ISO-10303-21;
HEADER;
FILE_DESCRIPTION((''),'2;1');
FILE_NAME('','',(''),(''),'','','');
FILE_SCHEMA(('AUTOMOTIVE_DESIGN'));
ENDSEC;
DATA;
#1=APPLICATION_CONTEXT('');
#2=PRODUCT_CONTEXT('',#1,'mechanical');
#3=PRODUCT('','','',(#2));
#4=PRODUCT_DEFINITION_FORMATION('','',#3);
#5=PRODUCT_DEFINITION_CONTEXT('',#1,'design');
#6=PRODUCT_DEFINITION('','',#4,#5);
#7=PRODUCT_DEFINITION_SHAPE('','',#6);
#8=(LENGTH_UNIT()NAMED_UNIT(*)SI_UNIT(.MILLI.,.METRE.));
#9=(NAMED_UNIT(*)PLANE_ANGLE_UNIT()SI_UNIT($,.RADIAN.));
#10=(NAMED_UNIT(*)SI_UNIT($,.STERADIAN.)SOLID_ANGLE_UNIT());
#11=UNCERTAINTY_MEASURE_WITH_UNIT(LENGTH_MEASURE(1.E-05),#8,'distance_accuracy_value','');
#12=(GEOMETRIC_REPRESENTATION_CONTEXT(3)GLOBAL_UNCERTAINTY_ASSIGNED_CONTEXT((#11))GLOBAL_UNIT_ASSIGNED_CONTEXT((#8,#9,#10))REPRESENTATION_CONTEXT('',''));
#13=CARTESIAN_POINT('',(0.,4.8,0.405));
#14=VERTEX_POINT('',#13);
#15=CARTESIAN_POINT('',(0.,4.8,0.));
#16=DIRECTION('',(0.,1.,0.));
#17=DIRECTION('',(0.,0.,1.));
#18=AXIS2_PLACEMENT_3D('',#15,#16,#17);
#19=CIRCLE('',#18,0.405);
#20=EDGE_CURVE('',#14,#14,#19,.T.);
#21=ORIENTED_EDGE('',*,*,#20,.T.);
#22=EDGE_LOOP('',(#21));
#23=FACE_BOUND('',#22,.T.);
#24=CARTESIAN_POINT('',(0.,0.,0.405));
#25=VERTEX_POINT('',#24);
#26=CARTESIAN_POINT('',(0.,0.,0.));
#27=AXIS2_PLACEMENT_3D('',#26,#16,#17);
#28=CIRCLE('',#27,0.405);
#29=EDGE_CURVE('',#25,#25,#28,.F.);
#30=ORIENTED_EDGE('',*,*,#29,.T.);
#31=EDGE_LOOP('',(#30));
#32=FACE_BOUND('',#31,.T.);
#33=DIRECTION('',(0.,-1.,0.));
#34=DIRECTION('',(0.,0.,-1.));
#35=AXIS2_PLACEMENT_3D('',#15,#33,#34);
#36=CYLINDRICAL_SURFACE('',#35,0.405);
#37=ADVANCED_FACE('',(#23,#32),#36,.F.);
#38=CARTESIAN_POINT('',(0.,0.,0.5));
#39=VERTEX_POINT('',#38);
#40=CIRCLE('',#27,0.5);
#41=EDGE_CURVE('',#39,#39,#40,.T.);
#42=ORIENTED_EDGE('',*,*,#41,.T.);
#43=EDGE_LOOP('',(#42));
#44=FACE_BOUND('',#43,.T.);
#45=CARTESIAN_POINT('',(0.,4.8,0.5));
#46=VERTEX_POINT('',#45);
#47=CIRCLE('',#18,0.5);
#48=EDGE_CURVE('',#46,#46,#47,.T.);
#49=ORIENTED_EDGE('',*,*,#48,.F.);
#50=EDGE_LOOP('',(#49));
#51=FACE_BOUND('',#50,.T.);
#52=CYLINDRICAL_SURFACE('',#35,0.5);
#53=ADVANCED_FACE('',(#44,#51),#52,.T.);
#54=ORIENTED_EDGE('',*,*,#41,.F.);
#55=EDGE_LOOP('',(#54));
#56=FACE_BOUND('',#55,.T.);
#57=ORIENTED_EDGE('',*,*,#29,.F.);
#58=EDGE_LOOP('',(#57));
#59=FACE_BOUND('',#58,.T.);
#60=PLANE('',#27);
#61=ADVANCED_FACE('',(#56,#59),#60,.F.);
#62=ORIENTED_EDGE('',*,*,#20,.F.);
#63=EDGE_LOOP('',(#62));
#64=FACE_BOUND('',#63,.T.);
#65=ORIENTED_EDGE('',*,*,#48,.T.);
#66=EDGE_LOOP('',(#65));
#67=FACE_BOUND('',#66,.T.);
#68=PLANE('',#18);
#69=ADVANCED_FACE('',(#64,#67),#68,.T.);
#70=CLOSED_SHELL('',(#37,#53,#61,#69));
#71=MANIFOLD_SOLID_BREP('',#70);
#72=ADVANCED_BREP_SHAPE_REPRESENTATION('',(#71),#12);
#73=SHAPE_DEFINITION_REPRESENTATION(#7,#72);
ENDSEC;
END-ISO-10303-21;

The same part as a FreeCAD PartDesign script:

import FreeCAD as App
import Part
import Sketcher
Q = App.Units.Quantity

doc = App.newDocument("Part")
body = doc.addObject("PartDesign::Body", "Body")

# Sketch on XZ plane
sketch1 = body.newObject("Sketcher::SketchObject", "Sketch")
sketch1.AttachmentSupport = (doc.getObject("XZ_Plane"), [""])
sketch1.MapMode = "FlatFace"
sketch1.addGeometry(Part.Circle(App.Vector(0, 0, 0), App.Vector(0, 0, 1), 0.5), False)
sketch1.addConstraint([
    Sketcher.Constraint("Coincident", 0, 3, -1, 1),
    Sketcher.Constraint("Diameter", 0, Q("1 mm")),
])
pad1 = body.newObject("PartDesign::Pad", "Pad")
pad1.Profile = sketch1
pad1.Length = 4.8
pad1.Reversed = True

# Sketch on XZ plane
sketch2 = body.newObject("Sketcher::SketchObject", "Sketch001")
sketch2.AttachmentSupport = (doc.getObject("XZ_Plane"), [""])
sketch2.MapMode = "FlatFace"
sketch2.addGeometry(Part.Circle(App.Vector(0, 0, 0), App.Vector(0, 0, 1), 0.41), False)
sketch2.addConstraint([
    Sketcher.Constraint("Coincident", 0, 3, -1, 1),
    Sketcher.Constraint("Diameter", 0, Q("0.81 mm")),
])
pocket1 = body.newObject("PartDesign::Pocket", "Pocket")
pocket1.Profile = sketch2
pocket1.Type = "ThroughAll"
pocket1.Midplane = True

doc.recompute()
